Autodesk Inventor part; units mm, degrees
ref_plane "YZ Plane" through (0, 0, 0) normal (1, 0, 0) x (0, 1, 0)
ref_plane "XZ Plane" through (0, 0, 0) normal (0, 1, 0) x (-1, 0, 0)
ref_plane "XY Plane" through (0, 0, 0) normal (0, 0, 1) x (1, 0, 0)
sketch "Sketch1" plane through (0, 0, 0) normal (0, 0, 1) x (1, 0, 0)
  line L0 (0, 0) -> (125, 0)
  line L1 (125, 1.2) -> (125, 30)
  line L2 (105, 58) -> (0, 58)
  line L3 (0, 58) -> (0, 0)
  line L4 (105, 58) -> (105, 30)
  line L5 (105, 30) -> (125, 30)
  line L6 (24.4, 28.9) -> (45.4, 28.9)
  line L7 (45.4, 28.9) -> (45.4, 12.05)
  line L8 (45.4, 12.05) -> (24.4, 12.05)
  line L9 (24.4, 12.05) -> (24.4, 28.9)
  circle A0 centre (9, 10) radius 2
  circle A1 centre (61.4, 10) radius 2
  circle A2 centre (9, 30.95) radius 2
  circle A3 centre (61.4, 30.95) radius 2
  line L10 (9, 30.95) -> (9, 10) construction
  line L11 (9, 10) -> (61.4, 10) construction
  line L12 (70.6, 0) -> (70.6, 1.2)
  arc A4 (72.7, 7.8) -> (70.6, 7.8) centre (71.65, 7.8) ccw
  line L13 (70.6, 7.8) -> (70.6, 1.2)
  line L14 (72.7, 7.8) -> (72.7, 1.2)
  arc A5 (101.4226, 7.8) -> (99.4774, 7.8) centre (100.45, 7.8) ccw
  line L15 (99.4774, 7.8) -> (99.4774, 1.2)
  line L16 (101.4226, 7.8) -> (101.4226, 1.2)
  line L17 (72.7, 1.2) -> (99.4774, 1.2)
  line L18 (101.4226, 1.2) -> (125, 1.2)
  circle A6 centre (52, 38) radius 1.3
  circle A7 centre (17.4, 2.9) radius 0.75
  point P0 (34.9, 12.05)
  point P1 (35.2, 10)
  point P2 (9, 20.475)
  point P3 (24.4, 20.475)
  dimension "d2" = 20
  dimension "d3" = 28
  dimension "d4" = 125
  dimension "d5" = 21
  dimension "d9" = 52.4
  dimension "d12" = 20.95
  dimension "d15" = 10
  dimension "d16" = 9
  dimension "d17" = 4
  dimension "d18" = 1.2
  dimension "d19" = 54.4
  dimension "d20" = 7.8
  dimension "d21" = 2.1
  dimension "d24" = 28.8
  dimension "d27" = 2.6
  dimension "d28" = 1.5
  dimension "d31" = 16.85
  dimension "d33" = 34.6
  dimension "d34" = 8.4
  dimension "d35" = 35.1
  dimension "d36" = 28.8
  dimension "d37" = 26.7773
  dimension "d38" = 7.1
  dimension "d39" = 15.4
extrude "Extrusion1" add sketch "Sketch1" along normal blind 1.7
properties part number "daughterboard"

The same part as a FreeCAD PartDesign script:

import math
import FreeCAD as App
import Part
import Sketcher
from FreeCAD import Vector
Q = App.Units.Quantity

doc = App.newDocument("Part")
body = doc.addObject("PartDesign::Body", "Body")

sketch1 = doc.addObject("Sketcher::SketchObject", "Sketch")
body.addObject(sketch1)
sketch1.AttachmentSupport = (doc.XY_Plane, [""])
sketch1.MapMode = "FlatFace"
sketch1.addGeometry(Part.LineSegment(Vector(0, 58, 0), Vector(0, 0, 0)), False)
sketch1.addGeometry(Part.LineSegment(Vector(0, 0, 0), Vector(70.6, 0, 0)), False)
sketch1.addGeometry(Part.LineSegment(Vector(70.6, 0, 0), Vector(70.6, 7.8, 0)), False)
sketch1.addGeometry(Part.ArcOfCircle(Part.Circle(Vector(71.7, 7.8, 0), Vector(0, 0, 1), 1), math.radians(0), math.radians(180)), False)
sketch1.addGeometry(Part.LineSegment(Vector(72.7, 7.8, 0), Vector(72.7, 1.2, 0)), False)
sketch1.addGeometry(Part.LineSegment(Vector(72.7, 1.2, 0), Vector(99.5, 1.2, 0)), False)
sketch1.addGeometry(Part.LineSegment(Vector(99.5, 1.2, 0), Vector(99.5, 7.8, 0)), False)
sketch1.addGeometry(Part.ArcOfCircle(Part.Circle(Vector(100.5, 7.8, 0), Vector(0, 0, 1), 1), math.radians(0), math.radians(180)), False)
sketch1.addGeometry(Part.LineSegment(Vector(101.4, 7.8, 0), Vector(101.4, 1.2, 0)), False)
sketch1.addGeometry(Part.LineSegment(Vector(101.4, 1.2, 0), Vector(125, 1.2, 0)), False)
sketch1.addGeometry(Part.LineSegment(Vector(125, 1.2, 0), Vector(125, 30, 0)), False)
sketch1.addGeometry(Part.LineSegment(Vector(125, 30, 0), Vector(105, 30, 0)), False)
sketch1.addGeometry(Part.LineSegment(Vector(105, 30, 0), Vector(105, 58, 0)), False)
sketch1.addGeometry(Part.LineSegment(Vector(105, 58, 0), Vector(0, 58, 0)), False)
sketch1.addGeometry(Part.Circle(Vector(17.4, 2.9, 0), Vector(0, 0, 1), 0.8), False)
sketch1.addGeometry(Part.Circle(Vector(9, 10, 0), Vector(0, 0, 1), 2), False)
sketch1.addGeometry(Part.Circle(Vector(61.4, 10, 0), Vector(0, 0, 1), 2), False)
sketch1.addGeometry(Part.LineSegment(Vector(24.4, 12.1, 0), Vector(24.4, 28.9, 0)), False)
sketch1.addGeometry(Part.LineSegment(Vector(24.4, 28.9, 0), Vector(45.4, 28.9, 0)), False)
sketch1.addGeometry(Part.LineSegment(Vector(45.4, 28.9, 0), Vector(45.4, 12.1, 0)), False)
sketch1.addGeometry(Part.LineSegment(Vector(45.4, 12.1, 0), Vector(24.4, 12.1, 0)), False)
sketch1.addGeometry(Part.Circle(Vector(9, 30.9, 0), Vector(0, 0, 1), 2), False)
sketch1.addGeometry(Part.Circle(Vector(61.4, 30.9, 0), Vector(0, 0, 1), 2), False)
sketch1.addGeometry(Part.Circle(Vector(52, 38, 0), Vector(0, 0, 1), 1.3), False)
sketch1.addConstraint(Sketcher.Constraint("Coincident", 0, 2, 1, 1))
sketch1.addConstraint(Sketcher.Constraint("Coincident", 1, 2, 2, 1))
sketch1.addConstraint(Sketcher.Constraint("Tangent", 2, 2, 3, 2))
sketch1.addConstraint(Sketcher.Constraint("Tangent", 3, 1, 4, 1))
sketch1.addConstraint(Sketcher.Constraint("Coincident", 4, 2, 5, 1))
sketch1.addConstraint(Sketcher.Constraint("Coincident", 5, 2, 6, 1))
sketch1.addConstraint(Sketcher.Constraint("Tangent", 6, 2, 7, 2))
sketch1.addConstraint(Sketcher.Constraint("Tangent", 7, 1, 8, 1))
sketch1.addConstraint(Sketcher.Constraint("Coincident", 8, 2, 9, 1))
sketch1.addConstraint(Sketcher.Constraint("Coincident", 9, 2, 10, 1))
sketch1.addConstraint(Sketcher.Constraint("Coincident", 10, 2, 11, 1))
sketch1.addConstraint(Sketcher.Constraint("Coincident", 11, 2, 12, 1))
sketch1.addConstraint(Sketcher.Constraint("Coincident", 12, 2, 13, 1))
sketch1.addConstraint(Sketcher.Constraint("Coincident", 13, 2, 0, 1))
sketch1.addConstraint(Sketcher.Constraint("Coincident", 17, 2, 18, 1))
sketch1.addConstraint(Sketcher.Constraint("Coincident", 18, 2, 19, 1))
sketch1.addConstraint(Sketcher.Constraint("Coincident", 19, 2, 20, 1))
sketch1.addConstraint(Sketcher.Constraint("Coincident", 20, 2, 17, 1))
sketch1.addConstraint(Sketcher.Constraint("Vertical", 0))
sketch1.addConstraint(Sketcher.Constraint("Horizontal", 1))
sketch1.addConstraint(Sketcher.Constraint("Vertical", 2))
sketch1.addConstraint(Sketcher.Constraint("Vertical", 4))
sketch1.addConstraint(Sketcher.Constraint("Horizontal", 5))
sketch1.addConstraint(Sketcher.Constraint("Vertical", 6))
sketch1.addConstraint(Sketcher.Constraint("Vertical", 8))
sketch1.addConstraint(Sketcher.Constraint("Horizontal", 9))
sketch1.addConstraint(Sketcher.Constraint("Vertical", 10))
sketch1.addConstraint(Sketcher.Constraint("Horizontal", 11))
sketch1.addConstraint(Sketcher.Constraint("Vertical", 12))
sketch1.addConstraint(Sketcher.Constraint("Horizontal", 13))
sketch1.addConstraint(Sketcher.Constraint("Vertical", 17))
sketch1.addConstraint(Sketcher.Constraint("Horizontal", 18))
sketch1.addConstraint(Sketcher.Constraint("Vertical", 19))
sketch1.addConstraint(Sketcher.Constraint("Horizontal", 20))
sketch1.addConstraint(Sketcher.Constraint("Coincident", 0, 2, -1, 1))
sketch1.addConstraint(Sketcher.Constraint("Equal", 15, 16))
sketch1.addConstraint(Sketcher.Constraint("Equal", 16, 21))
sketch1.addConstraint(Sketcher.Constraint("Equal", 21, 22))
sketch1.addConstraint(Sketcher.Constraint("Horizontal", 3, 3, 7, 3))
sketch1.addConstraint(Sketcher.Constraint("Horizontal", 15, 3, 16, 3))
sketch1.addConstraint(Sketcher.Constraint("Horizontal", 21, 3, 22, 3))
sketch1.addConstraint(Sketcher.Constraint("Horizontal", 5, 2, 8, 2))
sketch1.addConstraint(Sketcher.Constraint("Vertical", 15, 3, 21, 3))
sketch1.addConstraint(Sketcher.Constraint("Vertical", 16, 3, 22, 3))
sketch1.addConstraint(Sketcher.Constraint("Diameter", 15, Q("4 mm")))
sketch1.addConstraint(Sketcher.Constraint("Diameter", 14, Q("1.5 mm")))
sketch1.addConstraint(Sketcher.Constraint("Diameter", 23, Q("2.6 mm")))
sketch1.addConstraint(Sketcher.Constraint("DistanceX", 11, 2, 11, 1, Q("20 mm")))
sketch1.addConstraint(Sketcher.Constraint("DistanceX", 18, 1, 18, 2, Q("21 mm")))
sketch1.addConstraint(Sketcher.Constraint("DistanceY", 12, 1, 12, 2, Q("28 mm")))
sketch1.addConstraint(Sketcher.Constraint("Radius", 3, Q("1.05 mm")))
sketch1.addConstraint(Sketcher.Constraint("DistanceY", 2, 1, 2, 2, Q("7.8 mm")))
sketch1.addConstraint(Sketcher.Constraint("DistanceY", 10, 1, 10, 2, Q("28.8 mm")))
sketch1.addConstraint(Sketcher.Constraint("DistanceX", -1, 1, 15, 3, Q("9 mm")))
sketch1.addConstraint(Sketcher.Constraint("DistanceY", -1, 1, 15, 3, Q("10 mm")))
sketch1.addConstraint(Sketcher.Constraint("DistanceX", -1, 1, 9, 2, Q("125 mm")))
sketch1.addConstraint(Sketcher.Constraint("DistanceY", 16, 3, 23, 3, Q("28 mm")))
sketch1.addConstraint(Sketcher.Constraint("DistanceY", 23, 3, 13, 2, Q("20 mm")))
sketch1.addConstraint(Sketcher.Constraint("DistanceY", 17, 1, 17, 2, Q("16.85 mm")))
sketch1.addConstraint(Sketcher.Constraint("DistanceX", 3, 3, 7, 3, Q("28.8 mm")))
sketch1.addConstraint(Sketcher.Constraint("DistanceX", 15, 3, 14, 3, Q("8.4 mm")))
sketch1.addConstraint(Sketcher.Constraint("DistanceY", 14, 3, 15, 3, Q("7.1 mm")))
sketch1.addConstraint(Sketcher.Constraint("DistanceX", 15, 3, 16, 3, Q("52.4 mm")))
sketch1.addConstraint(Sketcher.Constraint("DistanceX", 14, 3, 23, 3, Q("34.6 mm")))
sketch1.addConstraint(Sketcher.Constraint("DistanceX", 21, 3, 17, 2, Q("15.4 mm")))
sketch1.addConstraint(Sketcher.Constraint("DistanceY", 15, 3, 21, 3, Q("20.95 mm")))
sketch1.addConstraint(Sketcher.Constraint("DistanceX", 1, 1, 1, 2, Q("70.6 mm")))
sketch1.addConstraint(Sketcher.Constraint("DistanceX", 5, 1, 5, 2, Q("26.7774 mm")))
sketch1.addConstraint(Sketcher.Constraint("DistanceY", 14, 3, 17, 2, Q("26 mm")))
pad1 = doc.addObject("PartDesign::Pad", "Pad")
body.addObject(pad1)
pad1.Profile = sketch1
pad1.Length = 1.7

doc.recompute()
